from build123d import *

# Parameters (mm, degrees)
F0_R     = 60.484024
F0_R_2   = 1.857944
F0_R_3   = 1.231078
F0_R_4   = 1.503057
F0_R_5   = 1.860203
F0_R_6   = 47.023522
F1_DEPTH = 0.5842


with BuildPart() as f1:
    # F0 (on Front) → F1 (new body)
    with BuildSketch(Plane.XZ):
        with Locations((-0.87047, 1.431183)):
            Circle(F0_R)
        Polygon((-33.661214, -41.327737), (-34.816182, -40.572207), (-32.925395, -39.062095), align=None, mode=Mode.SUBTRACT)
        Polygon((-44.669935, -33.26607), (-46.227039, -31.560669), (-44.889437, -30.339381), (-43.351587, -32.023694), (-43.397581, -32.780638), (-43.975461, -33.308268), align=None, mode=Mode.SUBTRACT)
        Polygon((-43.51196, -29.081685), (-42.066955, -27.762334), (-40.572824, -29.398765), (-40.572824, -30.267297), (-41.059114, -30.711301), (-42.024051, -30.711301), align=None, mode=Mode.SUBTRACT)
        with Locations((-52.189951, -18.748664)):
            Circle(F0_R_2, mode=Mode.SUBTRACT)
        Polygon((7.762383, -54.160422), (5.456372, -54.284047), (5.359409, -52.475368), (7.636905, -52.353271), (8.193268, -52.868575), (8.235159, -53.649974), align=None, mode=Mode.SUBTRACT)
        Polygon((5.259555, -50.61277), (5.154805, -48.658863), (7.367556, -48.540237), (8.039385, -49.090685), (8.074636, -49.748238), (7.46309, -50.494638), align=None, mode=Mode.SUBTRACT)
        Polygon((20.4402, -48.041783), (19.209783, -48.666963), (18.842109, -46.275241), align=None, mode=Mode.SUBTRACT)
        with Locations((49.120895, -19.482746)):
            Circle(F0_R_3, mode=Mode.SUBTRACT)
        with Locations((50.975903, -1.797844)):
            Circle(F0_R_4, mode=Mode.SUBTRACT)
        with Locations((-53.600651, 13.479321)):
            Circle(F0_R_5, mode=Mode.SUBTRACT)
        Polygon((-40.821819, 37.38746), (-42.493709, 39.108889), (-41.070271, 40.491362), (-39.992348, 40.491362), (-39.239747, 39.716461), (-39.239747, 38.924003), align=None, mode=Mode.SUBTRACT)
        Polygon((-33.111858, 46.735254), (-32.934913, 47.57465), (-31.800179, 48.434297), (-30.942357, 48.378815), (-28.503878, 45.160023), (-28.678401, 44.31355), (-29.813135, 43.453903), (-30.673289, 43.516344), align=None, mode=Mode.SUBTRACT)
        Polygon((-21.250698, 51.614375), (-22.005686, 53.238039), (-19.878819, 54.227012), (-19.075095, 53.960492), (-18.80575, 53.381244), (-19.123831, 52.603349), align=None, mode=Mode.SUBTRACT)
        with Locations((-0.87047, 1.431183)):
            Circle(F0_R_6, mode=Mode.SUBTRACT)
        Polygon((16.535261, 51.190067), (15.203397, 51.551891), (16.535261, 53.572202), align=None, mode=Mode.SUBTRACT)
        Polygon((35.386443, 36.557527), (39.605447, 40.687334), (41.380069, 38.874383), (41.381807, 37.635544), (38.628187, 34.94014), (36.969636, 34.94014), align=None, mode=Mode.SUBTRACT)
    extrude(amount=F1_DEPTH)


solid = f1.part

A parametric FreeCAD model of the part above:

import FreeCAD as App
import Part
import Sketcher
Q = App.Units.Quantity

doc = App.newDocument("Part")
params = doc.addObject("Spreadsheet::Sheet", "Params")
for row, (alias, value) in enumerate([
    ("pad1_length", "0.023 in"),
], start=1):
    params.set(f"A{row}", alias)
    params.set(f"B{row}", "=" + value)
    params.setAlias(f"B{row}", alias)

body = doc.addObject("PartDesign::Body", "Body")

# Sketch on XZ plane
sketch1 = body.newObject("Sketcher::SketchObject", "Sketch")
sketch1.AttachmentSupport = (doc.getObject("XZ_Plane"), [""])
sketch1.MapMode = "FlatFace"
sketch1.addGeometry([
    Part.Circle(App.Vector(-0.9, 1.4, 0), App.Vector(0, 0, 1), 60.5),  # 0
    Part.LineSegment(App.Vector(-44, -33.3, 0), App.Vector(-44.7, -33.3, 0)),  # 1
    Part.LineSegment(App.Vector(-44.7, -33.3, 0), App.Vector(-46.2, -31.6, 0)),  # 2
    Part.LineSegment(App.Vector(-46.2, -31.6, 0), App.Vector(-44.9, -30.3, 0)),  # 3
    Part.LineSegment(App.Vector(-44.9, -30.3, 0), App.Vector(-43.4, -32, 0)),  # 4
    Part.LineSegment(App.Vector(-43.4, -32, 0), App.Vector(-43.4, -32.8, 0)),  # 5
    Part.LineSegment(App.Vector(-43.4, -32.8, 0), App.Vector(-44, -33.3, 0)),  # 6
    Part.LineSegment(App.Vector(-42, -30.7, 0), App.Vector(-43.5, -29.1, 0)),  # 7
    Part.LineSegment(App.Vector(-43.5, -29.1, 0), App.Vector(-42.1, -27.8, 0)),  # 8
    Part.LineSegment(App.Vector(-42.1, -27.8, 0), App.Vector(-40.6, -29.4, 0)),  # 9
    Part.LineSegment(App.Vector(-40.6, -29.4, 0), App.Vector(-40.6, -30.3, 0)),  # 10
    Part.LineSegment(App.Vector(-40.6, -30.3, 0), App.Vector(-41.1, -30.7, 0)),  # 11
    Part.LineSegment(App.Vector(-41.1, -30.7, 0), App.Vector(-42, -30.7, 0)),  # 12
    Part.LineSegment(App.Vector(-32.9, -39.1, 0), App.Vector(-33.7, -41.3, 0)),  # 13
    Part.LineSegment(App.Vector(-33.7, -41.3, 0), App.Vector(-34.8, -40.6, 0)),  # 14
    Part.LineSegment(App.Vector(-34.8, -40.6, 0), App.Vector(-32.9, -39.1, 0)),  # 15
    Part.Circle(App.Vector(-52.2, -18.7, 0), App.Vector(0, 0, 1), 1.9),  # 16
    Part.LineSegment(App.Vector(8.2, -53.6, 0), App.Vector(7.8, -54.2, 0)),  # 17
    Part.LineSegment(App.Vector(7.8, -54.2, 0), App.Vector(5.5, -54.3, 0)),  # 18
    Part.LineSegment(App.Vector(5.5, -54.3, 0), App.Vector(5.4, -52.5, 0)),  # 19
    Part.LineSegment(App.Vector(5.4, -52.5, 0), App.Vector(7.6, -52.4, 0)),  # 20
    Part.LineSegment(App.Vector(7.6, -52.4, 0), App.Vector(8.2, -52.9, 0)),  # 21
    Part.LineSegment(App.Vector(8.2, -52.9, 0), App.Vector(8.2, -53.6, 0)),  # 22
    Part.LineSegment(App.Vector(7.5, -50.5, 0), App.Vector(5.3, -50.6, 0)),  # 23
    Part.LineSegment(App.Vector(5.3, -50.6, 0), App.Vector(5.2, -48.7, 0)),  # 24
    Part.LineSegment(App.Vector(5.2, -48.7, 0), App.Vector(7.4, -48.5, 0)),  # 25
    Part.LineSegment(App.Vector(7.4, -48.5, 0), App.Vector(8, -49.1, 0)),  # 26
    Part.LineSegment(App.Vector(8, -49.1, 0), App.Vector(8.1, -49.7, 0)),  # 27
    Part.LineSegment(App.Vector(8.1, -49.7, 0), App.Vector(7.5, -50.5, 0)),  # 28
    Part.LineSegment(App.Vector(18.8, -46.3, 0), App.Vector(20.4, -48, 0)),  # 29
    Part.LineSegment(App.Vector(20.4, -48, 0), App.Vector(19.2, -48.7, 0)),  # 30
    Part.LineSegment(App.Vector(19.2, -48.7, 0), App.Vector(18.8, -46.3, 0)),  # 31
    Part.Circle(App.Vector(49.1, -19.5, 0), App.Vector(0, 0, 1), 1.2),  # 32
    Part.Circle(App.Vector(51, -1.8, 0), App.Vector(0, 0, 1), 1.5),  # 33
    Part.Circle(App.Vector(-53.6, 13.5, 0), App.Vector(0, 0, 1), 1.9),  # 34
    Part.LineSegment(App.Vector(-39.2, 38.9, 0), App.Vector(-40.8, 37.4, 0)),  # 35
    Part.LineSegment(App.Vector(-40.8, 37.4, 0), App.Vector(-42.5, 39.1, 0)),  # 36
    Part.LineSegment(App.Vector(-42.5, 39.1, 0), App.Vector(-41.1, 40.5, 0)),  # 37
    Part.LineSegment(App.Vector(-41.1, 40.5, 0), App.Vector(-40, 40.5, 0)),  # 38
    Part.LineSegment(App.Vector(-40, 40.5, 0), App.Vector(-39.2, 39.7, 0)),  # 39
    Part.LineSegment(App.Vector(-39.2, 39.7, 0), App.Vector(-39.2, 38.9, 0)),  # 40
    Part.LineSegment(App.Vector(-30.7, 43.5, 0), App.Vector(-33.1, 46.7, 0)),  # 41
    Part.LineSegment(App.Vector(-33.1, 46.7, 0), App.Vector(-32.9, 47.6, 0)),  # 42
    Part.LineSegment(App.Vector(-32.9, 47.6, 0), App.Vector(-31.8, 48.4, 0)),  # 43
    Part.LineSegment(App.Vector(-31.8, 48.4, 0), App.Vector(-30.9, 48.4, 0)),  # 44
    Part.LineSegment(App.Vector(-30.9, 48.4, 0), App.Vector(-28.5, 45.2, 0)),  # 45
    Part.LineSegment(App.Vector(-28.5, 45.2, 0), App.Vector(-28.7, 44.3, 0)),  # 46
    Part.LineSegment(App.Vector(-28.7, 44.3, 0), App.Vector(-29.8, 43.5, 0)),  # 47
    Part.LineSegment(App.Vector(-29.8, 43.5, 0), App.Vector(-30.7, 43.5, 0)),  # 48
    Part.LineSegment(App.Vector(-19.1, 52.6, 0), App.Vector(-21.3, 51.6, 0)),  # 49
    Part.LineSegment(App.Vector(-21.3, 51.6, 0), App.Vector(-22, 53.2, 0)),  # 50
    Part.LineSegment(App.Vector(-22, 53.2, 0), App.Vector(-19.9, 54.2, 0)),  # 51
    Part.LineSegment(App.Vector(-19.9, 54.2, 0), App.Vector(-19.1, 54, 0)),  # 52
    Part.LineSegment(App.Vector(-19.1, 54, 0), App.Vector(-18.8, 53.4, 0)),  # 53
    Part.LineSegment(App.Vector(-18.8, 53.4, 0), App.Vector(-19.1, 52.6, 0)),  # 54
    Part.Circle(App.Vector(-0.9, 1.4, 0), App.Vector(0, 0, 1), 47),  # 55
    Part.LineSegment(App.Vector(16.5, 53.6, 0), App.Vector(16.5, 51.2, 0)),  # 56
    Part.LineSegment(App.Vector(16.5, 51.2, 0), App.Vector(15.2, 51.6, 0)),  # 57
    Part.LineSegment(App.Vector(15.2, 51.6, 0), App.Vector(16.5, 53.6, 0)),  # 58
    Part.LineSegment(App.Vector(37, 34.9, 0), App.Vector(35.4, 36.6, 0)),  # 59
    Part.LineSegment(App.Vector(35.4, 36.6, 0), App.Vector(39.6, 40.7, 0)),  # 60
    Part.LineSegment(App.Vector(39.6, 40.7, 0), App.Vector(41.4, 38.9, 0)),  # 61
    Part.LineSegment(App.Vector(41.4, 38.9, 0), App.Vector(41.4, 37.6, 0)),  # 62
    Part.LineSegment(App.Vector(41.4, 37.6, 0), App.Vector(38.6, 34.9, 0)),  # 63
    Part.LineSegment(App.Vector(38.6, 34.9, 0), App.Vector(37, 34.9, 0)),  # 64
], False)
sketch1.addConstraint([
    Sketcher.Constraint("Coincident", 1, 2, 2, 1),
    Sketcher.Constraint("Coincident", 2, 2, 3, 1),
    Sketcher.Constraint("Coincident", 3, 2, 4, 1),
    Sketcher.Constraint("Coincident", 4, 2, 5, 1),
    Sketcher.Constraint("Coincident", 5, 2, 6, 1),
    Sketcher.Constraint("Coincident", 6, 2, 1, 1),
    Sketcher.Constraint("Coincident", 7, 2, 8, 1),
    Sketcher.Constraint("Coincident", 8, 2, 9, 1),
    Sketcher.Constraint("Coincident", 9, 2, 10, 1),
    Sketcher.Constraint("Coincident", 10, 2, 11, 1),
    Sketcher.Constraint("Coincident", 11, 2, 12, 1),
    Sketcher.Constraint("Coincident", 12, 2, 7, 1),
    Sketcher.Constraint("Coincident", 13, 2, 14, 1),
    Sketcher.Constraint("Coincident", 14, 2, 15, 1),
    Sketcher.Constraint("Coincident", 15, 2, 13, 1),
    Sketcher.Constraint("Coincident", 17, 2, 18, 1),
    Sketcher.Constraint("Coincident", 18, 2, 19, 1),
    Sketcher.Constraint("Coincident", 19, 2, 20, 1),
    Sketcher.Constraint("Coincident", 20, 2, 21, 1),
    Sketcher.Constraint("Coincident", 21, 2, 22, 1),
    Sketcher.Constraint("Coincident", 22, 2, 17, 1),
    Sketcher.Constraint("Coincident", 23, 2, 24, 1),
    Sketcher.Constraint("Coincident", 24, 2, 25, 1),
    Sketcher.Constraint("Coincident", 25, 2, 26, 1),
    Sketcher.Constraint("Coincident", 26, 2, 27, 1),
    Sketcher.Constraint("Coincident", 27, 2, 28, 1),
    Sketcher.Constraint("Coincident", 28, 2, 23, 1),
    Sketcher.Constraint("Coincident", 29, 2, 30, 1),
    Sketcher.Constraint("Coincident", 30, 2, 31, 1),
    Sketcher.Constraint("Coincident", 31, 2, 29, 1),
    Sketcher.Constraint("Coincident", 35, 2, 36, 1),
    Sketcher.Constraint("Coincident", 36, 2, 37, 1),
    Sketcher.Constraint("Coincident", 37, 2, 38, 1),
    Sketcher.Constraint("Coincident", 38, 2, 39, 1),
    Sketcher.Constraint("Coincident", 39, 2, 40, 1),
    Sketcher.Constraint("Coincident", 40, 2, 35, 1),
    Sketcher.Constraint("Coincident", 41, 2, 42, 1),
    Sketcher.Constraint("Coincident", 42, 2, 43, 1),
    Sketcher.Constraint("Coincident", 43, 2, 44, 1),
    Sketcher.Constraint("Coincident", 44, 2, 45, 1),
    Sketcher.Constraint("Coincident", 45, 2, 46, 1),
    Sketcher.Constraint("Coincident", 46, 2, 47, 1),
    Sketcher.Constraint("Coincident", 47, 2, 48, 1),
    Sketcher.Constraint("Coincident", 48, 2, 41, 1),
    Sketcher.Constraint("Coincident", 49, 2, 50, 1),
    Sketcher.Constraint("Coincident", 50, 2, 51, 1),
    Sketcher.Constraint("Coincident", 51, 2, 52, 1),
    Sketcher.Constraint("Coincident", 52, 2, 53, 1),
    Sketcher.Constraint("Coincident", 53, 2, 54, 1),
    Sketcher.Constraint("Coincident", 54, 2, 49, 1),
    Sketcher.Constraint("Coincident", 56, 2, 57, 1),
    Sketcher.Constraint("Coincident", 57, 2, 58, 1),
    Sketcher.Constraint("Coincident", 58, 2, 56, 1),
    Sketcher.Constraint("Coincident", 59, 2, 60, 1),
    Sketcher.Constraint("Coincident", 60, 2, 61, 1),
    Sketcher.Constraint("Coincident", 61, 2, 62, 1),
    Sketcher.Constraint("Coincident", 62, 2, 63, 1),
    Sketcher.Constraint("Coincident", 63, 2, 64, 1),
    Sketcher.Constraint("Coincident", 64, 2, 59, 1),
    Sketcher.Constraint("Vertical", 10),
    Sketcher.Constraint("Horizontal", 12),
    Sketcher.Constraint("Horizontal", 38),
    Sketcher.Constraint("Vertical", 40),
    Sketcher.Constraint("Vertical", 56),
    Sketcher.Constraint("Horizontal", 64),
    Sketcher.Constraint("Coincident", 55, 3, 0, 3),
    Sketcher.Constraint("Perpendicular", 2, 3),
    Sketcher.Constraint("Perpendicular", 3, 4),
    Sketcher.Constraint("Perpendicular", 1, 5),
    Sketcher.Constraint("Perpendicular", 4, 6),
    Sketcher.Constraint("Perpendicular", 6, 7),
    Sketcher.Constraint("Perpendicular", 7, 8),
    Sketcher.Constraint("Perpendicular", 8, 9),
    Sketcher.Constraint("Perpendicular", 9, 11),
    Sketcher.Constraint("Perpendicular", 18, 19),
    Sketcher.Constraint("Perpendicular", 19, 20),
    Sketcher.Constraint("Perpendicular", 17, 21),
    Sketcher.Constraint("Perpendicular", 20, 22),
    Sketcher.Constraint("Perpendicular", 22, 23),
    Sketcher.Constraint("Perpendicular", 23, 24),
    Sketcher.Constraint("Perpendicular", 24, 25),
    Sketcher.Constraint("Perpendicular", 25, 27),
    Sketcher.Constraint("Perpendicular", 26, 28),
    Sketcher.Constraint("Perpendicular", 35, 36),
    Sketcher.Constraint("Perpendicular", 36, 37),
    Sketcher.Constraint("Perpendicular", 37, 39),
    Sketcher.Constraint("Perpendicular", 41, 43),
    Sketcher.Constraint("Perpendicular", 43, 45),
    Sketcher.Constraint("Perpendicular", 45, 47),
    Sketcher.Constraint("Perpendicular", 49, 50),
    Sketcher.Constraint("Perpendicular", 50, 51),
    Sketcher.Constraint("Perpendicular", 51, 53),
    Sketcher.Constraint("Perpendicular", 59, 60),
    Sketcher.Constraint("Perpendicular", 60, 61),
    Sketcher.Constraint("Perpendicular", 61, 63),
    Sketcher.Constraint("Equal", 1, 17),
    Sketcher.Constraint("Equal", 2, 18),
    Sketcher.Constraint("Equal", 3, 19),
    Sketcher.Constraint("Equal", 4, 20),
    Sketcher.Constraint("Equal", 5, 21),
    Sketcher.Constraint("Equal", 7, 23),
    Sketcher.Constraint("Equal", 8, 24),
    Sketcher.Constraint("Equal", 9, 25),
    Sketcher.Constraint("Equal", 11, 27),
    Sketcher.Constraint("Equal", 13, 29),
    Sketcher.Constraint("Equal", 14, 30),
    Sketcher.Constraint("Equal", 15, 31),
    Sketcher.Constraint("Equal", 43, 47),
    Sketcher.Constraint("Equal", 49, 51),
    Sketcher.Constraint("Equal", 30, 57),
    Sketcher.Constraint("Equal", 31, 58),
    Sketcher.Constraint("Diameter", 16, 3.715888),
    Sketcher.Constraint("Diameter", 0, 120.968048),
    Sketcher.Constraint("Diameter", 32, 2.462156),
    Sketcher.Constraint("Diameter", 33, 3.006114),
    Sketcher.Constraint("Diameter", 34, 3.720406),
    Sketcher.Constraint("Diameter", 55, 94.047044),
    Sketcher.Constraint("DistanceY", 17, 2, -1, 1, Q("2.1323001 in")),
    Sketcher.Constraint("DistanceX", 45, 2, -1, 1, Q("1.1221999 in")),
    Sketcher.Constraint("Distance", 7, 2.206699),
    Sketcher.Constraint("DistanceX", 64, 2, 64, 1, 1.658551),
    Sketcher.Constraint("DistanceY", 10, 2, 10, 1, 0.868532),
    Sketcher.Constraint("DistanceY", 40, 2, 40, 1, 0.792458),
    Sketcher.Constraint("DistanceY", 11, 2, -1, 1, 30.711301),
    Sketcher.Constraint("DistanceX", -1, 1, 29, 2, 20.4402),
    Sketcher.Constraint("DistanceX", 46, 2, -1, 1, 28.678401),
    Sketcher.Constraint("DistanceX", 49, 2, -1, 1, 21.250698),
    Sketcher.Constraint("DistanceY", -1, 1, 58, 2, 53.572202),
    Sketcher.Constraint("Distance", 2, 2.309321),
    Sketcher.Constraint("Distance", 5, 0.75834),
    Sketcher.Constraint("Distance", 6, 0.782521),
    Sketcher.Constraint("Distance", 25, 2.215928),
    Sketcher.Constraint("Distance", 26, 0.868532),
    Sketcher.Constraint("Distance", 35, 2.205429),
    Sketcher.Constraint("Distance", 37, 1.98429),
    Sketcher.Constraint("Distance", 45, 4.038168),
    Sketcher.Constraint("Distance", 52, 0.846762),
    Sketcher.Constraint("Distance", 59, 2.263281),
    Sketcher.Constraint("Distance", 61, 2.536942),
    Sketcher.Constraint("Distance", 62, 1.23884),
    Sketcher.Constraint("Distance", 63, 3.853262),
    Sketcher.Constraint("DistanceX", 12, 2, 12, 1, 0.964937),
    Sketcher.Constraint("DistanceX", 38, 1, 38, 2, 1.077923),
    Sketcher.Constraint("DistanceY", 56, 2, 56, 1, 2.382135),
    Sketcher.Constraint("DistanceX", 0, 3, -1, 1, 0.87047),
    Sketcher.Constraint("DistanceX", 16, 3, -1, 1, 52.189951),
    Sketcher.Constraint("DistanceX", 34, 3, -1, 1, 53.600651),
    Sketcher.Constraint("DistanceY", -1, 1, 34, 3, 13.479321),
    Sketcher.Constraint("DistanceY", 1, 2, -1, 1, 33.26607),
    Sketcher.Constraint("DistanceX", 2, 2, -1, 1, 46.227039),
    Sketcher.Constraint("DistanceY", 3, 2, -1, 1, 30.339381),
    Sketcher.Constraint("DistanceX", 5, 2, -1, 1, 43.397581),
    Sketcher.Constraint("DistanceX", 7, 2, -1, 1, 43.51196),
    Sketcher.Constraint("DistanceX", 14, 2, -1, 1, 34.816182),
    Sketcher.Constraint("DistanceX", -1, 1, 19, 2, 5.359409),
    Sketcher.Constraint("DistanceY", 19, 2, -1, 1, 52.475368),
    Sketcher.Constraint("DistanceY", 23, 2, -1, 1, 50.61277),
    Sketcher.Constraint("DistanceX", -1, 1, 28, 2, 7.46309),
    Sketcher.Constraint("DistanceX", -1, 1, 31, 2, 18.842109),
    Sketcher.Constraint("DistanceY", 31, 2, -1, 1, 46.275241),
    Sketcher.Constraint("DistanceX", 35, 2, -1, 1, 40.821819),
    Sketcher.Constraint("DistanceY", -1, 1, 35, 2, 37.38746),
    Sketcher.Constraint("DistanceX", 36, 2, -1, 1, 42.493709),
    Sketcher.Constraint("DistanceY", -1, 1, 42, 2, 47.57465),
    Sketcher.Constraint("DistanceX", 43, 2, -1, 1, 31.800179),
    Sketcher.Constraint("DistanceY", -1, 1, 46, 2, 44.31355),
    Sketcher.Constraint("DistanceX", 48, 2, -1, 1, 30.673289),
    Sketcher.Constraint("DistanceY", -1, 1, 50, 2, 53.238039),
    Sketcher.Constraint("DistanceX", 51, 2, -1, 1, 19.878819),
    Sketcher.Constraint("DistanceX", 53, 2, -1, 1, 18.80575),
    Sketcher.Constraint("DistanceX", 54, 2, -1, 1, 19.123831),
    Sketcher.Constraint("DistanceY", -1, 1, 54, 2, 52.603349),
    Sketcher.Constraint("DistanceX", -1, 1, 56, 2, 16.535261),
    Sketcher.Constraint("DistanceY", -1, 1, 57, 2, 51.551891),
    Sketcher.Constraint("DistanceX", -1, 1, 61, 2, 41.380069),
    Sketcher.Constraint("DistanceY", -1, 1, 63, 2, 34.94014),
    Sketcher.Constraint("Distance", 8, 1.956713),
    Sketcher.Constraint("Distance", 13, 2.382134),
    Sketcher.Constraint("Distance", 14, 1.380136),
    Sketcher.Constraint("Distance", 41, 4.038317),
    Sketcher.Constraint("Distance", 42, 0.857843),
    Sketcher.Constraint("Distance", 43, 1.423592),
    Sketcher.Constraint("Distance", 44, 0.859614),
    Sketcher.Constraint("Distance", 46, 0.864277),
    Sketcher.Constraint("Distance", 53, 0.638807),
    Sketcher.Constraint("Distance", 60, 5.903838),
    Sketcher.Constraint("DistanceY", -1, 1, 0, 3, 1.431183),
    Sketcher.Constraint("DistanceY", 16, 3, -1, 1, 18.748664),
    Sketcher.Constraint("DistanceX", -1, 1, 32, 3, 49.120895),
    Sketcher.Constraint("DistanceY", 32, 3, -1, 1, 19.482746),
    Sketcher.Constraint("DistanceX", -1, 1, 33, 3, 50.975903),
    Sketcher.Constraint("DistanceY", 33, 3, -1, 1, 1.797844),
    Sketcher.Constraint("DistanceX", 13, 2, -1, 1, 33.661214),
    Sketcher.Constraint("DistanceY", 13, 2, -1, 1, 41.327737),
])
pad1 = body.newObject("PartDesign::Pad", "Pad")
pad1.Profile = sketch1
pad1.setExpression("Length", "Params.pad1_length")

doc.recompute()
